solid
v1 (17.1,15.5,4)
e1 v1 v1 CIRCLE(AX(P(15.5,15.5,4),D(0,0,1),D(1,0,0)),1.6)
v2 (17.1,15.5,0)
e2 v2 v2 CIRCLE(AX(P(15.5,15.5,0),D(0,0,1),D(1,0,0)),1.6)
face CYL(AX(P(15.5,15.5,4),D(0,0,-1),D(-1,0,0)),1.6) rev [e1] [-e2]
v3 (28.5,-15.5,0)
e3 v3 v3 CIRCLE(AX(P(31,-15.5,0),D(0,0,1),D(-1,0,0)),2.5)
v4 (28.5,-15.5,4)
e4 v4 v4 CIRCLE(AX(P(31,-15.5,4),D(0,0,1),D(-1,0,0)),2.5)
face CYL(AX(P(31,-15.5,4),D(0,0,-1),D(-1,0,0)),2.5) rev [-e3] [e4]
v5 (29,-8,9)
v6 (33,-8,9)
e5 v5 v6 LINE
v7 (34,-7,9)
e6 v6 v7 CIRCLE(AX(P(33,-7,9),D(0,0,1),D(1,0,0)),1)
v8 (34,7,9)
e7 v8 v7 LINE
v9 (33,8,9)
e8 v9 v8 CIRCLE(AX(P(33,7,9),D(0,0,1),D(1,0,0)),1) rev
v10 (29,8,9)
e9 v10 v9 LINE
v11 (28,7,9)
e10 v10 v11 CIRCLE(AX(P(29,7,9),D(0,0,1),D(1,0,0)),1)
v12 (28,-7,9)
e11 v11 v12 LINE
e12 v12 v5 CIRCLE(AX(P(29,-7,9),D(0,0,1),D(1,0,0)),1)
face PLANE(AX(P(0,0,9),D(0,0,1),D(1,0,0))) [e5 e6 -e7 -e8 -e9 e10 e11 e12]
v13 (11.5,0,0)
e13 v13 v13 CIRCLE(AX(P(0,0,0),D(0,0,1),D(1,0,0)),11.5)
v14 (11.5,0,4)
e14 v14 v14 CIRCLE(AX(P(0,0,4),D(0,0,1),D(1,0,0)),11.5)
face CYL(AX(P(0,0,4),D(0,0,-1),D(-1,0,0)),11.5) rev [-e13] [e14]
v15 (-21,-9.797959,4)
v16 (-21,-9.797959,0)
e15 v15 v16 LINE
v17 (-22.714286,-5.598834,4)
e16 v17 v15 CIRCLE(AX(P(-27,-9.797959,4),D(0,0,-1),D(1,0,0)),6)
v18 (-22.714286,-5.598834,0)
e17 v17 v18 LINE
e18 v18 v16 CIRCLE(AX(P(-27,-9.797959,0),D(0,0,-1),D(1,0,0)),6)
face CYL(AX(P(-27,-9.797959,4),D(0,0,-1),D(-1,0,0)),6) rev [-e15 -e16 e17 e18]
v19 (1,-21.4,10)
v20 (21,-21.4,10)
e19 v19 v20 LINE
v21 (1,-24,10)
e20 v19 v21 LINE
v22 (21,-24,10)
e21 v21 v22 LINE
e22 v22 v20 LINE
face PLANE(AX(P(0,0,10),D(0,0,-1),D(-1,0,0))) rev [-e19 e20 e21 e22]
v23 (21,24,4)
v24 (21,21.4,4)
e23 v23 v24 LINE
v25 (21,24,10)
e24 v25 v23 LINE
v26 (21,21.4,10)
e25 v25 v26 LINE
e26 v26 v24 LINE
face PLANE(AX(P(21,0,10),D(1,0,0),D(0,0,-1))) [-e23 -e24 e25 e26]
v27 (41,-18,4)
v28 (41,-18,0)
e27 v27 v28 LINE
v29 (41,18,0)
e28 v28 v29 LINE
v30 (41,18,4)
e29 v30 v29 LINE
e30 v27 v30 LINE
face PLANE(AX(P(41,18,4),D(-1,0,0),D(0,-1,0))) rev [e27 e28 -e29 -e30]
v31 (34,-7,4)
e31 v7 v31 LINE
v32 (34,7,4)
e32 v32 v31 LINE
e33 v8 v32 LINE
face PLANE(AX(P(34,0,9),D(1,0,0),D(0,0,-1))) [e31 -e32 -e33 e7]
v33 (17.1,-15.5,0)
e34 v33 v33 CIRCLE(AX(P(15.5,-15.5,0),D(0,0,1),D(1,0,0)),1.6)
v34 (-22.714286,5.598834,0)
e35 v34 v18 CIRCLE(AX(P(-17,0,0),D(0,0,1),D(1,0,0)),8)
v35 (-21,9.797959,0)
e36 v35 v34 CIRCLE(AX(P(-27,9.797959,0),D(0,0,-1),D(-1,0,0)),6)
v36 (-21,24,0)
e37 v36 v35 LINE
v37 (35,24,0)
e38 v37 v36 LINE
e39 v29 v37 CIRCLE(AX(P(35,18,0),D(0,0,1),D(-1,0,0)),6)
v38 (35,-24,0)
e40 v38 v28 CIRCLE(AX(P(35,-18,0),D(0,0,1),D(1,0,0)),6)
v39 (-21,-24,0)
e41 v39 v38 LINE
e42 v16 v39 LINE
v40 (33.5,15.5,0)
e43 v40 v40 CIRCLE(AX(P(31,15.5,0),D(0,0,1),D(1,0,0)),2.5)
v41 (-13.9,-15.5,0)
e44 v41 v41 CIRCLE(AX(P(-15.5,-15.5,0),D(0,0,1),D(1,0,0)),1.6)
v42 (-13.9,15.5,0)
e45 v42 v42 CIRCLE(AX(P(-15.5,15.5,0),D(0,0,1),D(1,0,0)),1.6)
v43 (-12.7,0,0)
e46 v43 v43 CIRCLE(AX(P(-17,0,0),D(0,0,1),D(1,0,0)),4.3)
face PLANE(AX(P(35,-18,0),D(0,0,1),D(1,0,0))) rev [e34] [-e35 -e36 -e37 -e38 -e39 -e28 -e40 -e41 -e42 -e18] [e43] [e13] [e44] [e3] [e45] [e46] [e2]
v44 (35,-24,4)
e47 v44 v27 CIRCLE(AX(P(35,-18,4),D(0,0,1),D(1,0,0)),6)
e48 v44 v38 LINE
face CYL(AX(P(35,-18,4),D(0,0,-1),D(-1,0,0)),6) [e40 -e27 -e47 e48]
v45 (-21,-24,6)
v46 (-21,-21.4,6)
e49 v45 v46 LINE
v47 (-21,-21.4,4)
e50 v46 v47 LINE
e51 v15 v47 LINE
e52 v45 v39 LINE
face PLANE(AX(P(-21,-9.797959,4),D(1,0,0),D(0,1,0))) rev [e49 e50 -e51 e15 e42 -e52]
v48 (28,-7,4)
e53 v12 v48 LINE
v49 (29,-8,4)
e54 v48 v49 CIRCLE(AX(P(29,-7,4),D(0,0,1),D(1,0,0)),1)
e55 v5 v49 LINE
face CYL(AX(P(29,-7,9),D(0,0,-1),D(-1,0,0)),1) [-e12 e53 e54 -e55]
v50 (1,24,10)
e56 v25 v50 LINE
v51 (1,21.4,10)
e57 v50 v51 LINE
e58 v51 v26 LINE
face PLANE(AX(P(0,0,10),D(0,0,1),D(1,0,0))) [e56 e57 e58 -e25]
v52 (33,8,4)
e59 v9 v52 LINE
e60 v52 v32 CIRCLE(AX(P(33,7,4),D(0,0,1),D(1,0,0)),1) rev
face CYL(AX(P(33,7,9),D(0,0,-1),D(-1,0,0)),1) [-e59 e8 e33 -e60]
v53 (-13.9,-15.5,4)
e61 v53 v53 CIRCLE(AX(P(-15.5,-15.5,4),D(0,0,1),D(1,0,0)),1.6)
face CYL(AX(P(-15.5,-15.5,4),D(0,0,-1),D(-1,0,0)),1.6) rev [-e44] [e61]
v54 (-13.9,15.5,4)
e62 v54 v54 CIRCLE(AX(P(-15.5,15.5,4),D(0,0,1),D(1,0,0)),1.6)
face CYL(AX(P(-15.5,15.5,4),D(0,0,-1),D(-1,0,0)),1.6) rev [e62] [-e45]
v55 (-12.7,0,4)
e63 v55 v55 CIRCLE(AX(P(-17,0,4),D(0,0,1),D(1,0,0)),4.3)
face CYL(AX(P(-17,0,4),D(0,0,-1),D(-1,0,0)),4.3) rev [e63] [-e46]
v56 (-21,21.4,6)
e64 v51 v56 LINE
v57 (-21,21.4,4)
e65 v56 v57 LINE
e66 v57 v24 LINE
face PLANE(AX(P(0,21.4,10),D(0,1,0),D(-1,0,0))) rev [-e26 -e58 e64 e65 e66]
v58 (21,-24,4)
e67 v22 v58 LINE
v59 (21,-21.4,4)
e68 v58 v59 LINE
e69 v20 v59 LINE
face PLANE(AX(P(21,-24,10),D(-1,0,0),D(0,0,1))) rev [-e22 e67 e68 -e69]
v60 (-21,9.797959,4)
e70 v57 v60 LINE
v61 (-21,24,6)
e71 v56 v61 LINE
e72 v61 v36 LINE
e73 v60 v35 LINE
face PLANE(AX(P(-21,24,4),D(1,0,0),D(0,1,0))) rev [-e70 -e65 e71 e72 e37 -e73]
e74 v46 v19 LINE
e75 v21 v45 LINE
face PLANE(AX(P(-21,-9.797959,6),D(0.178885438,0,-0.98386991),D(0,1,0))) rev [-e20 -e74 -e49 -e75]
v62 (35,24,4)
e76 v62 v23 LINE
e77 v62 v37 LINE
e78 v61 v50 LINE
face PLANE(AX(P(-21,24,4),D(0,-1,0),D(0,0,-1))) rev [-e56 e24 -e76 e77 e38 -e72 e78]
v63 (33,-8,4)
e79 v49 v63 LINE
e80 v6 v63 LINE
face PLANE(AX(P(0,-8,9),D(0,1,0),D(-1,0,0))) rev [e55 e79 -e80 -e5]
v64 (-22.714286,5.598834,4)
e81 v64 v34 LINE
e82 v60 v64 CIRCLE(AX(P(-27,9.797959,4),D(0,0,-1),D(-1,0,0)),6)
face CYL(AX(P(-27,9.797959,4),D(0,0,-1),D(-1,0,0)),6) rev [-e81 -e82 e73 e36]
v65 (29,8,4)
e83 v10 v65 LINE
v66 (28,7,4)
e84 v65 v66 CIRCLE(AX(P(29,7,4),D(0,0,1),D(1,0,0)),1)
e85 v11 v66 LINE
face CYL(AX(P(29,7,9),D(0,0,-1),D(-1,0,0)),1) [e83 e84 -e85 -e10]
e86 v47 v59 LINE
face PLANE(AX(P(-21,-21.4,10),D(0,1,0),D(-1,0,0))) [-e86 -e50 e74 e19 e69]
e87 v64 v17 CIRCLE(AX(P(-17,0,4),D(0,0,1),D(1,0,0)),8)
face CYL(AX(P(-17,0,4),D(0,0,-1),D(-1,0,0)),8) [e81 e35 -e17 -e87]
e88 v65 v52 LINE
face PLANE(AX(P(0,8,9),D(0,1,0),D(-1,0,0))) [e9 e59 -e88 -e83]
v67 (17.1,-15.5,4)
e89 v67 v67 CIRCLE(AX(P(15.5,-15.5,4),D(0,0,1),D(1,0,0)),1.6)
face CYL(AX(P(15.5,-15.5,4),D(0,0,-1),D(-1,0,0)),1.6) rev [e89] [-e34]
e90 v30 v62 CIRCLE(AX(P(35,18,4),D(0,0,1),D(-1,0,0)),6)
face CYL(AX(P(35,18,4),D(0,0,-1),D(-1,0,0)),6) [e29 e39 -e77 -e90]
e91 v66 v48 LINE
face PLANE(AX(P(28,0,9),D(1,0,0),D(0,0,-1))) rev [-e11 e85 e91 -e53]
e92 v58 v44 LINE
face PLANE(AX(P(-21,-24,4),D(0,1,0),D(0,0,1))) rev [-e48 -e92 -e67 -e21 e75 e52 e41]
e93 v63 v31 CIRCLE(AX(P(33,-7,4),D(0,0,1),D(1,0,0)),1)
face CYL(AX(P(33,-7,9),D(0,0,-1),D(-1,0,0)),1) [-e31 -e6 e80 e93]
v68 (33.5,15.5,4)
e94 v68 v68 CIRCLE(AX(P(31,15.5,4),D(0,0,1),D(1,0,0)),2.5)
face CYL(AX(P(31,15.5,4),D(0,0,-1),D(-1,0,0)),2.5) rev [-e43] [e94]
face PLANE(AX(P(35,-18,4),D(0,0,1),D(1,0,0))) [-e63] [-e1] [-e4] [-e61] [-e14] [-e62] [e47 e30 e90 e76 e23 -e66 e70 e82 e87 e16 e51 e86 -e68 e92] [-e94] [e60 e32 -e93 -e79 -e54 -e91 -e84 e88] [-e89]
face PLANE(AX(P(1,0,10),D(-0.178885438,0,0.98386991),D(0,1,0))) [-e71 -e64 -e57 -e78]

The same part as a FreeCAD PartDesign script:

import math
import FreeCAD as App
import Part
import Sketcher
from FreeCAD import Vector
Q = App.Units.Quantity


def edges_at(feature, points):
    """Names of the edges that pass closest to the given points."""
    edges = feature.Shape.Edges
    near = lambda p: min(range(len(edges)), key=lambda i: edges[i].distToShape(Part.Vertex(*p))[0])
    return sorted({f"Edge{near(p) + 1}" for p in points})


def add_polygon(sketch, points):
    """Adds a closed chain of lines whose ends are joined by coincident constraints."""
    first, n = sketch.GeometryCount, len(points)
    for a, b in zip(points, points[1:] + points[:1]):
        sketch.addGeometry(Part.LineSegment(App.Vector(*a, 0), App.Vector(*b, 0)), False)
    for i in range(n):
        sketch.addConstraint(Sketcher.Constraint("Coincident", first + i, 2, first + (i + 1) % n, 1))

doc = App.newDocument("Part")
body = doc.addObject("PartDesign::Body", "Body")

# Sketch on XY plane
sketch1 = body.newObject("Sketcher::SketchObject", "Sketch")
sketch1.AttachmentSupport = (doc.getObject("XY_Plane"), [""])
sketch1.MapMode = "FlatFace"
sketch1.addGeometry(Part.LineSegment(Vector(35, 24, 0), Vector(-21, 24, 0)), False)
sketch1.addGeometry(Part.LineSegment(Vector(-21, 24, 0), Vector(-21, 9.797959, 0)), False)
sketch1.addGeometry(Part.ArcOfCircle(Part.Circle(Vector(-27, 9.797959, 0), Vector(0, 0, 1), 6), math.radians(-44.415309), math.radians(0)), False)
sketch1.addGeometry(Part.ArcOfCircle(Part.Circle(Vector(-17, 0, 0), Vector(0, 0, 1), 8), math.radians(135.584691), math.radians(224.415309)), False)
sketch1.addGeometry(Part.ArcOfCircle(Part.Circle(Vector(-27, -9.797959, 0), Vector(0, 0, 1), 6), math.radians(0), math.radians(44.415309)), False)
sketch1.addGeometry(Part.LineSegment(Vector(-21, -9.797959, 0), Vector(-21, -24, 0)), False)
sketch1.addGeometry(Part.LineSegment(Vector(-21, -24, 0), Vector(35, -24, 0)), False)
sketch1.addGeometry(Part.ArcOfCircle(Part.Circle(Vector(35, -18, 0), Vector(0, 0, 1), 6), math.radians(-90), math.radians(0)), False)
sketch1.addGeometry(Part.LineSegment(Vector(41, -18, 0), Vector(41, 18, 0)), False)
sketch1.addGeometry(Part.ArcOfCircle(Part.Circle(Vector(35, 18, 0), Vector(0, 0, 1), 6), math.radians(0), math.radians(90)), False)
sketch1.addGeometry(Part.Circle(Vector(31, -15.5, 0), Vector(0, 0, 1), 2.5), False)
sketch1.addGeometry(Part.Circle(Vector(15.5, -15.5, 0), Vector(0, 0, 1), 1.6), False)
sketch1.addGeometry(Part.Circle(Vector(-15.5, -15.5, 0), Vector(0, 0, 1), 1.6), False)
sketch1.addGeometry(Part.Circle(Vector(31, 15.5, 0), Vector(0, 0, 1), 2.5), False)
sketch1.addGeometry(Part.Circle(Vector(15.5, 15.5, 0), Vector(0, 0, 1), 1.6), False)
sketch1.addGeometry(Part.Circle(Vector(0, 0, 0), Vector(0, 0, 1), 11.5), False)
sketch1.addGeometry(Part.Circle(Vector(-17, 0, 0), Vector(0, 0, 1), 4.3), False)
sketch1.addGeometry(Part.Circle(Vector(-15.5, 15.5, 0), Vector(0, 0, 1), 1.6), False)
sketch1.addConstraint(Sketcher.Constraint("Coincident", 0, 2, 1, 1))
sketch1.addConstraint(Sketcher.Constraint("Tangent", 1, 2, 2, 2))
sketch1.addConstraint(Sketcher.Constraint("Tangent", 2, 1, 3, 1))
sketch1.addConstraint(Sketcher.Constraint("Tangent", 3, 2, 4, 2))
sketch1.addConstraint(Sketcher.Constraint("Tangent", 4, 1, 5, 1))
sketch1.addConstraint(Sketcher.Constraint("Coincident", 5, 2, 6, 1))
sketch1.addConstraint(Sketcher.Constraint("Tangent", 6, 2, 7, 1))
sketch1.addConstraint(Sketcher.Constraint("Tangent", 7, 2, 8, 1))
sketch1.addConstraint(Sketcher.Constraint("Tangent", 8, 2, 9, 1))
sketch1.addConstraint(Sketcher.Constraint("Tangent", 9, 2, 0, 1))
sketch1.addConstraint(Sketcher.Constraint("Horizontal", 0))
sketch1.addConstraint(Sketcher.Constraint("Vertical", 1))
sketch1.addConstraint(Sketcher.Constraint("Vertical", 5))
sketch1.addConstraint(Sketcher.Constraint("Horizontal", 6))
sketch1.addConstraint(Sketcher.Constraint("Vertical", 8))
sketch1.addConstraint(Sketcher.Constraint("Coincident", 15, 3, -1, 1))
sketch1.addConstraint(Sketcher.Constraint("Coincident", 16, 3, 3, 3))
sketch1.addConstraint(Sketcher.Constraint("Equal", 2, 4))
sketch1.addConstraint(Sketcher.Constraint("Equal", 4, 7))
sketch1.addConstraint(Sketcher.Constraint("Equal", 7, 9))
sketch1.addConstraint(Sketcher.Constraint("Equal", 11, 12))
sketch1.addConstraint(Sketcher.Constraint("Equal", 10, 13))
sketch1.addConstraint(Sketcher.Constraint("Equal", 12, 14))
sketch1.addConstraint(Sketcher.Constraint("Equal", 14, 17))
sketch1.addConstraint(Sketcher.Constraint("Symmetric", 12, 3, 14, 3, -1, 1))
sketch1.addConstraint(Sketcher.Constraint("Symmetric", 11, 3, 17, 3, -1, 1))
sketch1.addConstraint(Sketcher.Constraint("Symmetric", 11, 3, 12, 3, -2))
sketch1.addConstraint(Sketcher.Constraint("Symmetric", 2, 3, 4, 3, -1))
sketch1.addConstraint(Sketcher.Constraint("Symmetric", 10, 3, 13, 3, -1))
sketch1.addConstraint(Sketcher.Constraint("Horizontal", 10, 3, 11, 3))
sketch1.addConstraint(Sketcher.Constraint("Equal", 1, 5))
sketch1.addConstraint(Sketcher.Constraint("Diameter", 10, Q("5 mm")))
sketch1.addConstraint(Sketcher.Constraint("Diameter", 15, Q("23 mm")))
sketch1.addConstraint(Sketcher.Constraint("Radius", 2, Q("6 mm")))
sketch1.addConstraint(Sketcher.Constraint("Radius", 3, Q("8 mm")))
sketch1.addConstraint(Sketcher.Constraint("Diameter", 11, Q("3.2 mm")))
sketch1.addConstraint(Sketcher.Constraint("Diameter", 16, Q("8.6 mm")))
sketch1.addConstraint(Sketcher.Constraint("DistanceX", 0, 2, 0, 1, Q("56 mm")))
sketch1.addConstraint(Sketcher.Constraint("DistanceY", 8, 1, 8, 2, Q("36 mm")))
sketch1.addConstraint(Sketcher.Constraint("DistanceX", 2, 3, -1, 1, Q("27 mm")))
sketch1.addConstraint(Sketcher.Constraint("DistanceX", 3, 3, -1, 1, Q("17 mm")))
sketch1.addConstraint(Sketcher.Constraint("DistanceX", -1, 1, 10, 3, Q("31 mm")))
sketch1.addConstraint(Sketcher.Constraint("DistanceX", 12, 3, 11, 3, Q("31 mm")))
sketch1.addConstraint(Sketcher.Constraint("DistanceY", 10, 3, 13, 3, Q("31 mm")))
pad1 = body.newObject("PartDesign::Pad", "Pad")
pad1.Profile = sketch1
pad1.Length = 4

# Sketch on XY plane
sketch2 = body.newObject("Sketcher::SketchObject", "Sketch001")
sketch2.AttachmentSupport = (doc.getObject("XY_Plane"), [""])
sketch2.MapMode = "FlatFace"
sketch2.AttachmentOffset = App.Placement(Vector(0, 0, 4), App.Rotation())
add_polygon(sketch2, [(-21, 24), (-21, 21.4), (21, 21.4), (21, 24)])  # lines 0-3
add_polygon(sketch2, [(-21, -21.4), (-21, -24), (21, -24), (21, -21.4)])  # lines 4-7
sketch2.addConstraint(Sketcher.Constraint("Vertical", 0))
sketch2.addConstraint(Sketcher.Constraint("Horizontal", 1))
sketch2.addConstraint(Sketcher.Constraint("Vertical", 2))
sketch2.addConstraint(Sketcher.Constraint("Horizontal", 3))
sketch2.addConstraint(Sketcher.Constraint("Vertical", 4))
sketch2.addConstraint(Sketcher.Constraint("Horizontal", 5))
sketch2.addConstraint(Sketcher.Constraint("Vertical", 6))
sketch2.addConstraint(Sketcher.Constraint("Horizontal", 7))
sketch2.addConstraint(Sketcher.Constraint("Symmetric", 2, 2, 4, 2, -1, 1))
sketch2.addConstraint(Sketcher.Constraint("Symmetric", 0, 2, 6, 2, -1, 1))
sketch2.addConstraint(Sketcher.Constraint("Vertical", 3, 2, 4, 2))
sketch2.addConstraint(Sketcher.Constraint("DistanceX", 1, 1, 1, 2, Q("42 mm")))
sketch2.addConstraint(Sketcher.Constraint("DistanceY", 0, 2, 0, 1, Q("2.6 mm")))
sketch2.addConstraint(Sketcher.Constraint("DistanceY", -1, 1, 2, 2, Q("24 mm")))
pad2 = body.newObject("PartDesign::Pad", "Pad001")
pad2.Profile = sketch2
pad2.Length = 6

# Sketch on XY plane
sketch3 = body.newObject("Sketcher::SketchObject", "Sketch002")
sketch3.AttachmentSupport = (doc.getObject("XY_Plane"), [""])
sketch3.MapMode = "FlatFace"
sketch3.AttachmentOffset = App.Placement(Vector(0, 0, 4), App.Rotation())
add_polygon(sketch3, [(-21, 24), (-21, 21.4), (21, 21.4), (21, 24)])  # lines 0-3
sketch3.addGeometry(Part.LineSegment(Vector(33, 8, 0), Vector(29, 8, 0)), False)  # 4
sketch3.addGeometry(Part.ArcOfCircle(Part.Circle(Vector(29, 7, 0), Vector(0, 0, 1), 1), math.radians(90), math.radians(180)), False)  # 5
sketch3.addGeometry(Part.LineSegment(Vector(28, 7, 0), Vector(28, -7, 0)), False)  # 6
sketch3.addGeometry(Part.ArcOfCircle(Part.Circle(Vector(29, -7, 0), Vector(0, 0, 1), 1), math.radians(-180), math.radians(-90)), False)  # 7
sketch3.addGeometry(Part.LineSegment(Vector(29, -8, 0), Vector(33, -8, 0)), False)  # 8
sketch3.addGeometry(Part.ArcOfCircle(Part.Circle(Vector(33, -7, 0), Vector(0, 0, 1), 1), math.radians(-90), math.radians(0)), False)  # 9
sketch3.addGeometry(Part.LineSegment(Vector(34, -7, 0), Vector(34, 7, 0)), False)  # 10
sketch3.addGeometry(Part.ArcOfCircle(Part.Circle(Vector(33, 7, 0), Vector(0, 0, 1), 1), math.radians(0), math.radians(90)), False)  # 11
add_polygon(sketch3, [(-21, -21.4), (-21, -24), (21, -24), (21, -21.4)])  # lines 12-15
sketch3.addConstraint(Sketcher.Constraint("Tangent", 4, 2, 5, 1))
sketch3.addConstraint(Sketcher.Constraint("Tangent", 5, 2, 6, 1))
sketch3.addConstraint(Sketcher.Constraint("Tangent", 6, 2, 7, 1))
sketch3.addConstraint(Sketcher.Constraint("Tangent", 7, 2, 8, 1))
sketch3.addConstraint(Sketcher.Constraint("Tangent", 8, 2, 9, 1))
sketch3.addConstraint(Sketcher.Constraint("Tangent", 9, 2, 10, 1))
sketch3.addConstraint(Sketcher.Constraint("Tangent", 10, 2, 11, 1))
sketch3.addConstraint(Sketcher.Constraint("Tangent", 11, 2, 4, 1))
sketch3.addConstraint(Sketcher.Constraint("Vertical", 0))
sketch3.addConstraint(Sketcher.Constraint("Horizontal", 1))
sketch3.addConstraint(Sketcher.Constraint("Vertical", 2))
sketch3.addConstraint(Sketcher.Constraint("Horizontal", 3))
sketch3.addConstraint(Sketcher.Constraint("Horizontal", 4))
sketch3.addConstraint(Sketcher.Constraint("Vertical", 6))
sketch3.addConstraint(Sketcher.Constraint("Horizontal", 8))
sketch3.addConstraint(Sketcher.Constraint("Vertical", 10))
sketch3.addConstraint(Sketcher.Constraint("Vertical", 12))
sketch3.addConstraint(Sketcher.Constraint("Horizontal", 13))
sketch3.addConstraint(Sketcher.Constraint("Vertical", 14))
sketch3.addConstraint(Sketcher.Constraint("Horizontal", 15))
sketch3.addConstraint(Sketcher.Constraint("Equal", 5, 7))
sketch3.addConstraint(Sketcher.Constraint("Equal", 7, 9))
sketch3.addConstraint(Sketcher.Constraint("Equal", 9, 11))
sketch3.addConstraint(Sketcher.Constraint("Symmetric", 2, 2, 12, 2, -1, 1))
sketch3.addConstraint(Sketcher.Constraint("Symmetric", 0, 2, 14, 2, -1, 1))
sketch3.addConstraint(Sketcher.Constraint("Vertical", 3, 2, 12, 2))
sketch3.addConstraint(Sketcher.Constraint("Radius", 5, Q("1 mm")))
sketch3.addConstraint(Sketcher.Constraint("DistanceX", 1, 1, 1, 2, Q("42 mm")))
sketch3.addConstraint(Sketcher.Constraint("DistanceX", 4, 2, 4, 1, Q("4 mm")))
sketch3.addConstraint(Sketcher.Constraint("DistanceY", 6, 2, 6, 1, Q("14 mm")))
sketch3.addConstraint(Sketcher.Constraint("DistanceY", 0, 2, 0, 1, Q("2.6 mm")))
sketch3.addConstraint(Sketcher.Constraint("DistanceX", -1, 1, 5, 3, Q("29 mm")))
sketch3.addConstraint(Sketcher.Constraint("DistanceY", -1, 1, 5, 3, Q("7 mm")))
sketch3.addConstraint(Sketcher.Constraint("DistanceY", -1, 1, 2, 2, Q("24 mm")))
pad3 = body.newObject("PartDesign::Pad", "Pad002")
pad3.Profile = sketch3
pad3.Length = 5
doc.recompute()

chamfer = body.newObject("PartDesign::Chamfer", "Chamfer")
chamfer.Base = (pad3, edges_at(pad3, [(-21, 22.7, 10)]))
chamfer.ChamferType = "Two distances"
chamfer.Size = 4
chamfer.Size2 = 22
chamfer.FlipDirection = True
doc.recompute()

chamfer2 = body.newObject("PartDesign::Chamfer", "Chamfer001")
chamfer2.Base = (chamfer, edges_at(chamfer, [(-21, -22.7, 10)]))
chamfer2.ChamferType = "Two distances"
chamfer2.Size = 22
chamfer2.Size2 = 4
chamfer2.FlipDirection = True

doc.recompute()
